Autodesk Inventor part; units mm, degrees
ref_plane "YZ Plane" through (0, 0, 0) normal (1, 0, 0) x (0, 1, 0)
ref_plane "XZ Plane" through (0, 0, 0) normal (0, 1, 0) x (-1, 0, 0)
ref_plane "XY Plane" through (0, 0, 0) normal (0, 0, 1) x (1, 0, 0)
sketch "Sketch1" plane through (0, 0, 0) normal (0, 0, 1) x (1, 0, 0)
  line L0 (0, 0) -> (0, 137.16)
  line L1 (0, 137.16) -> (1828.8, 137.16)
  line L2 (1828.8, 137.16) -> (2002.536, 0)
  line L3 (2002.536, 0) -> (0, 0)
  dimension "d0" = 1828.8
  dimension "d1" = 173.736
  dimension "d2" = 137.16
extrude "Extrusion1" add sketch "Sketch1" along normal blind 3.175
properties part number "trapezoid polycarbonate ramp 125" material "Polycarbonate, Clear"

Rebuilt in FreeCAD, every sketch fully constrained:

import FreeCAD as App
import Part
import Sketcher
from FreeCAD import Vector
Q = App.Units.Quantity

doc = App.newDocument("Part")
body = doc.addObject("PartDesign::Body", "Body")

# Sketch on XY plane
sketch1 = body.newObject("Sketcher::SketchObject", "Sketch")
sketch1.AttachmentSupport = (doc.getObject("XY_Plane"), [""])
sketch1.MapMode = "FlatFace"
sketch1.addGeometry([
    Part.LineSegment(Vector(0, 137, 0), Vector(0, 0, 0)),
    Part.LineSegment(Vector(0, 0, 0), Vector(2003, 0, 0)),
    Part.LineSegment(Vector(2003, 0, 0), Vector(1829, 137, 0)),
    Part.LineSegment(Vector(1829, 137, 0), Vector(0, 137, 0)),
], False)
sketch1.addConstraint([
    Sketcher.Constraint("Coincident", 0, 2, 1, 1),
    Sketcher.Constraint("Coincident", 1, 2, 2, 1),
    Sketcher.Constraint("Coincident", 2, 2, 3, 1),
    Sketcher.Constraint("Coincident", 3, 2, 0, 1),
    Sketcher.Constraint("Vertical", 0),
    Sketcher.Constraint("Horizontal", 1),
    Sketcher.Constraint("Horizontal", 3),
    Sketcher.Constraint("Coincident", 0, 2, -1, 1),
    Sketcher.Constraint("DistanceX", 3, 2, 3, 1, Q("72 in")),
    Sketcher.Constraint("DistanceY", 0, 2, 0, 1, Q("5.4 in")),
    Sketcher.Constraint("DistanceX", 2, 2, 1, 2, Q("6.84 in")),
])
pad1 = body.newObject("PartDesign::Pad", "Pad")
pad1.Profile = sketch1
pad1.Length = Q("0.125 in")

doc.recompute()
